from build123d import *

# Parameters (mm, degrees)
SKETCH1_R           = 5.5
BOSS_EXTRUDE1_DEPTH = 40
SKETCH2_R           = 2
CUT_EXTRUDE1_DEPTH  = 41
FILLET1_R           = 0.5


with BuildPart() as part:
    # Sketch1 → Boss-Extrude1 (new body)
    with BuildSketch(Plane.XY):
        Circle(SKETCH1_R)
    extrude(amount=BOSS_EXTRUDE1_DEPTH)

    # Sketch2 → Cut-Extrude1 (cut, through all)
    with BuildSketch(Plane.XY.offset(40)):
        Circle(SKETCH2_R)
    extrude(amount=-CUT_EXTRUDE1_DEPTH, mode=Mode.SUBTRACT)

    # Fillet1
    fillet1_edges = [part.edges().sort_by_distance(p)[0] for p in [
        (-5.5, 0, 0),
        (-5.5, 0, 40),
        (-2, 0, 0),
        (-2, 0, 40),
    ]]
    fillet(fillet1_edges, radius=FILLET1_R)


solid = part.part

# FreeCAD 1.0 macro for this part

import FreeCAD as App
import Part
import Sketcher

V = App.Vector
Q = App.Units.Quantity


def edges_at(feature, points):
    """Names of the edges that pass closest to the given points."""
    edges = feature.Shape.Edges
    near = lambda p: min(range(len(edges)), key=lambda i: edges[i].distToShape(Part.Vertex(*p))[0])
    return sorted({f"Edge{near(p) + 1}" for p in points})

doc = App.newDocument("Part")
params = doc.addObject("Spreadsheet::Sheet", "Params")
for row, (alias, value) in enumerate([
    ("sketch1_diameter", "11 mm"),
    ("pad1_length", "40 mm"),
    ("sketch2_diameter", "4 mm"),
    ("fillet_radius", "0.5 mm"),
], start=1):
    params.set(f"A{row}", alias)
    params.set(f"B{row}", "=" + value)
    params.setAlias(f"B{row}", alias)

body = doc.addObject("PartDesign::Body", "Body")

sketch1 = doc.addObject("Sketcher::SketchObject", "Sketch")
body.addObject(sketch1)
sketch1.AttachmentSupport = (doc.XY_Plane, [""])
sketch1.MapMode = "FlatFace"
sketch1.addGeometry(Part.Circle(V(0, 0, 0), V(0, 0, 1), 6), False)
sketch1.addConstraint([
    Sketcher.Constraint("Coincident", 0, 3, -1, 1),
    Sketcher.Constraint("Diameter", 0, Q("11 mm")),
])
sketch1.setExpression("Constraints[1]", "Params.sketch1_diameter")
pad1 = doc.addObject("PartDesign::Pad", "Pad")
body.addObject(pad1)
pad1.Profile = sketch1
pad1.setExpression("Length", "Params.pad1_length")

sketch2 = doc.addObject("Sketcher::SketchObject", "Sketch001")
body.addObject(sketch2)
sketch2.AttachmentSupport = (doc.XY_Plane, [""])
sketch2.MapMode = "FlatFace"
sketch2.AttachmentOffset = App.Placement(V(0, 0, 40), App.Rotation())
sketch2.addGeometry(Part.Circle(V(0, 0, 0), V(0, 0, 1), 2), False)
sketch2.addConstraint([
    Sketcher.Constraint("Coincident", 0, 3, -1, 1),
    Sketcher.Constraint("Diameter", 0, Q("4 mm")),
])
sketch2.setExpression("Constraints[1]", "Params.sketch2_diameter")
pocket1 = doc.addObject("PartDesign::Pocket", "Pocket")
body.addObject(pocket1)
pocket1.Profile = sketch2
pocket1.Type = "ThroughAll"
doc.recompute()

fillet = doc.addObject("PartDesign::Fillet", "Fillet")
body.addObject(fillet)
fillet.Base = (pocket1, edges_at(pocket1, [
    (-5.5, 0, 0),
    (-5.5, 0, 40),
    (-2, 0, 0),
    (-2, 0, 40),
]))
fillet.setExpression("Radius", "Params.fillet_radius")

doc.recompute()
